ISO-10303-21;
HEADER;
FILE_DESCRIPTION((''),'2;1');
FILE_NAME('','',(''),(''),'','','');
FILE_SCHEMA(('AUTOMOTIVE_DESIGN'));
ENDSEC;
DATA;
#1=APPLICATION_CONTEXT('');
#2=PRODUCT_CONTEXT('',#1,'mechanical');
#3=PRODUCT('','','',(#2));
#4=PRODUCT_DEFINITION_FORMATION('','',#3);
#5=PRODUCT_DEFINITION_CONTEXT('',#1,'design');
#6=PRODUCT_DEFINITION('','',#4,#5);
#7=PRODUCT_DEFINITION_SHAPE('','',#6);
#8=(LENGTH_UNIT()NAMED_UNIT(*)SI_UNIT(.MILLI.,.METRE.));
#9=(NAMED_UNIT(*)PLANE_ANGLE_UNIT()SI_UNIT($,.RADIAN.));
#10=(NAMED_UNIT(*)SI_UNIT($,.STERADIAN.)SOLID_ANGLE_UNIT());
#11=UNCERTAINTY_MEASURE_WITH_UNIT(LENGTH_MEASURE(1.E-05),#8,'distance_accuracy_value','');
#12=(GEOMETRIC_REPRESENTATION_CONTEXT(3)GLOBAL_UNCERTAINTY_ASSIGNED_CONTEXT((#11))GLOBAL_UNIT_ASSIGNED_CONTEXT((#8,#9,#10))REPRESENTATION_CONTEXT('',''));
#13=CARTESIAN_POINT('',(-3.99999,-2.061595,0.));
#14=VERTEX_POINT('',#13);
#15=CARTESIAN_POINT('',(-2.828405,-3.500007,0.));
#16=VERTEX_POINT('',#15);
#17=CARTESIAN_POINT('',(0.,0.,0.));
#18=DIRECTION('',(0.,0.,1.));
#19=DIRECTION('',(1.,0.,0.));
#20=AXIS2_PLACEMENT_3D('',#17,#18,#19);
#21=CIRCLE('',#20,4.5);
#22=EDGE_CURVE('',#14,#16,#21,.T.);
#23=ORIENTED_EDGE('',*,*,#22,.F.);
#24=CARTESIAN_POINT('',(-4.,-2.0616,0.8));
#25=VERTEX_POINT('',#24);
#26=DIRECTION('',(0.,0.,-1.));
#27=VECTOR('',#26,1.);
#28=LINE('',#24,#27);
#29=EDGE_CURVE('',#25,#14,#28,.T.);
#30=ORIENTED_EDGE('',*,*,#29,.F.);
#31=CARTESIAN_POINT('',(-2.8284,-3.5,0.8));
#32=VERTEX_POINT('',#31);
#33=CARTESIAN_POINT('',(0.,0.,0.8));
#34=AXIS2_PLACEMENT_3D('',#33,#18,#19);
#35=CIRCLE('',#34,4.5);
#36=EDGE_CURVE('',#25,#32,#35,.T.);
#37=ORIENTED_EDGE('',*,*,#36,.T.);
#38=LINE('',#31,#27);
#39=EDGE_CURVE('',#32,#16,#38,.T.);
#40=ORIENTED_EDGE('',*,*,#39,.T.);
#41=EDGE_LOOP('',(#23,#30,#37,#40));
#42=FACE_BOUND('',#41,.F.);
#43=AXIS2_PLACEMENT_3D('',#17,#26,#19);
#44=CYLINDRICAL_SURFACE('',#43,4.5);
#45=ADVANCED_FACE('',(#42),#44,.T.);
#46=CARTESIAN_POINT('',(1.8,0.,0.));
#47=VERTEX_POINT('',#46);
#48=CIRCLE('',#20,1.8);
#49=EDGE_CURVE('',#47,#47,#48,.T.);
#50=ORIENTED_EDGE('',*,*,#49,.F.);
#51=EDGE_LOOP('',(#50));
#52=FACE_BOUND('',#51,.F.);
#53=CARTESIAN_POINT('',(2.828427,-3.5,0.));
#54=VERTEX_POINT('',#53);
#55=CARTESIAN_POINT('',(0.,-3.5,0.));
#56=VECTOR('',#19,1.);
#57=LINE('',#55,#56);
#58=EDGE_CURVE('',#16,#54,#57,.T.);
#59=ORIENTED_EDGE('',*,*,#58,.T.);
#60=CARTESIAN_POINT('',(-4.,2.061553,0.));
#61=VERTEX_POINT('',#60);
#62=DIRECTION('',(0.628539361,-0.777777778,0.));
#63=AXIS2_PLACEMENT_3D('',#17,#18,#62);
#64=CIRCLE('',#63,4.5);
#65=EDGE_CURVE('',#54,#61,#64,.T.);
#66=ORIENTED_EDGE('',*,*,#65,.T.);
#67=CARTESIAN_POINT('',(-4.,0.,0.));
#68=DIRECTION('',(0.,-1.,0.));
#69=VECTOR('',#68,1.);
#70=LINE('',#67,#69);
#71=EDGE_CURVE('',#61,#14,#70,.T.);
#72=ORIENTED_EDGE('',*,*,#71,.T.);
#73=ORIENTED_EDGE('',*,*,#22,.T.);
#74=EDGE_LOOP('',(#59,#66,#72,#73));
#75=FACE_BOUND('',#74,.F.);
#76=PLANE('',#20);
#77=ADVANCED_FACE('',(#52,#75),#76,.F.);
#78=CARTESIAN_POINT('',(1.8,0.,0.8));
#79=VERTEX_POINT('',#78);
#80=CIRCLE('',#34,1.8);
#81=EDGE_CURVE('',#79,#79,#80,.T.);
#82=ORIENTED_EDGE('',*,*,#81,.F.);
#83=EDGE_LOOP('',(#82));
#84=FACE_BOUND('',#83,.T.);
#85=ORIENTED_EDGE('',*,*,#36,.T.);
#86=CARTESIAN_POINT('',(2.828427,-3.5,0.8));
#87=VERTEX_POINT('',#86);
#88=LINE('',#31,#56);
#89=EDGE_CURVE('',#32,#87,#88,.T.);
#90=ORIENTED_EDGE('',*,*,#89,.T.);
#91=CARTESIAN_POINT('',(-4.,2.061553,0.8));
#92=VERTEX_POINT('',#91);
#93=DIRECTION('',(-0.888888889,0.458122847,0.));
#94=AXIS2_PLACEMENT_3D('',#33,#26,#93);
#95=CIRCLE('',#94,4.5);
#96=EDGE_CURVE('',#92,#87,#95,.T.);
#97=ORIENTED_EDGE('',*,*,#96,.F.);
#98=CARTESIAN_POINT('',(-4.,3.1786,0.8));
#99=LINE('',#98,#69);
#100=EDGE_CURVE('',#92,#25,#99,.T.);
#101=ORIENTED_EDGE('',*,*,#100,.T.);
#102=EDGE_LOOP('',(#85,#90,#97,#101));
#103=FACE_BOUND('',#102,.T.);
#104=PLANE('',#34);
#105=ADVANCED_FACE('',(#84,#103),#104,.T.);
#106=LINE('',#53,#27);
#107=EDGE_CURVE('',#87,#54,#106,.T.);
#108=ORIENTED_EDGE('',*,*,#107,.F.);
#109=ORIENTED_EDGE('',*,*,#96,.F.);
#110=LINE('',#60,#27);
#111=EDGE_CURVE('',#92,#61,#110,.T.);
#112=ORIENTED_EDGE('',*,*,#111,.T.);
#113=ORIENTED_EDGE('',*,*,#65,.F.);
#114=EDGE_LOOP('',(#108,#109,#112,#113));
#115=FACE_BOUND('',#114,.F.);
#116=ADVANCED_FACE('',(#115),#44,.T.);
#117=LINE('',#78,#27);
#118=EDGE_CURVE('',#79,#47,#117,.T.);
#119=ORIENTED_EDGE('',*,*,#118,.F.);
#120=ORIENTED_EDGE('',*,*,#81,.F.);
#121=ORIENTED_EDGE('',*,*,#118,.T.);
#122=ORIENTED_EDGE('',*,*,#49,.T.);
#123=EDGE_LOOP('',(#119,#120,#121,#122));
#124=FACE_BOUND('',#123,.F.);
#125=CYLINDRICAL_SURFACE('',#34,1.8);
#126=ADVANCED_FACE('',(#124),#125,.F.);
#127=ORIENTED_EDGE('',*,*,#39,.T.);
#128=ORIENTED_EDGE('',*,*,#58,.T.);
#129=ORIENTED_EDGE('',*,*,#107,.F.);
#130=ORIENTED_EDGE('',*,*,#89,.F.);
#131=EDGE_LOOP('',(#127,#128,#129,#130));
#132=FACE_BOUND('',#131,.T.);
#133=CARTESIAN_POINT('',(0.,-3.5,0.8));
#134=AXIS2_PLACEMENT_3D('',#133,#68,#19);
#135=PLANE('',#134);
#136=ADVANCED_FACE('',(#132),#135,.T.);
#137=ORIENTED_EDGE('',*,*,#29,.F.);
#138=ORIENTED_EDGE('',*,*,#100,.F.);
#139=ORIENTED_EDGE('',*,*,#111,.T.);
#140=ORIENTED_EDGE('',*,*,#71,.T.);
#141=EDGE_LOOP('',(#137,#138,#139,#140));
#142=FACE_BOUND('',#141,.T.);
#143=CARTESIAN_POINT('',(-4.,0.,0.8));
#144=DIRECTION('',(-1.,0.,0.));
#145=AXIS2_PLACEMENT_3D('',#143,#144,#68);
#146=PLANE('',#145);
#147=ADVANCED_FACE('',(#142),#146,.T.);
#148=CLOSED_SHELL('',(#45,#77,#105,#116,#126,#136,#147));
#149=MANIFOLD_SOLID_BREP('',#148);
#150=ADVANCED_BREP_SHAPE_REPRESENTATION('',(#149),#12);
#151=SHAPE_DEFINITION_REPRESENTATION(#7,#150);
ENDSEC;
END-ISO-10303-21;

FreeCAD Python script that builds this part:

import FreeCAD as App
import Part
import Sketcher
Q = App.Units.Quantity


def add_polygon(sketch, points):
    """Adds a closed chain of lines whose ends are joined by coincident constraints."""
    first, n = sketch.GeometryCount, len(points)
    for a, b in zip(points, points[1:] + points[:1]):
        sketch.addGeometry(Part.LineSegment(App.Vector(*a, 0), App.Vector(*b, 0)), False)
    for i in range(n):
        sketch.addConstraint(Sketcher.Constraint("Coincident", first + i, 2, first + (i + 1) % n, 1))

doc = App.newDocument("Part")
body = doc.addObject("PartDesign::Body", "Body")

sketch1 = body.newObject("Sketcher::SketchObject", "Sketch")
sketch1.AttachmentSupport = (doc.getObject("XY_Plane"), [""])
sketch1.MapMode = "FlatFace"
sketch1.addGeometry(Part.Circle(App.Vector(0, 0, 0), App.Vector(0, 0, 1), 4.5), False)
sketch1.addConstraint(Sketcher.Constraint("Coincident", 0, 3, -1, 1))
sketch1.addConstraint(Sketcher.Constraint("Diameter", 0, Q("9 mm")))
pad1 = body.newObject("PartDesign::Pad", "Pad")
pad1.Profile = sketch1
pad1.Length = 0.8

sketch2 = body.newObject("Sketcher::SketchObject", "Sketch001")
sketch2.AttachmentSupport = (doc.getObject("XY_Plane"), [""])
sketch2.MapMode = "FlatFace"
sketch2.AttachmentOffset = App.Placement(App.Vector(0, 0, 0.8), App.Rotation())
sketch2.addGeometry(Part.Circle(App.Vector(0, 0, 0), App.Vector(0, 0, 1), 1.8), False)
sketch2.addConstraint(Sketcher.Constraint("Coincident", 0, 3, -1, 1))
sketch2.addConstraint(Sketcher.Constraint("Diameter", 0, Q("3.6 mm")))
pocket1 = body.newObject("PartDesign::Pocket", "Pocket")
pocket1.Profile = sketch2
pocket1.Length = 0.8

sketch3 = body.newObject("Sketcher::SketchObject", "Sketch002")
sketch3.AttachmentSupport = (doc.getObject("XY_Plane"), [""])
sketch3.MapMode = "FlatFace"
sketch3.AttachmentOffset = App.Placement(App.Vector(0, 0, 0.8), App.Rotation())
add_polygon(sketch3, [(-2.8284, -3.5), (-2.8284, -5.6057), (4.77, -5.6057), (4.77, -3.5)])
add_polygon(sketch3, [(-4, -2.0616), (-4, 3.1786), (-5.2131, 3.1786), (-5.2131, -2.0616)])
sketch3.addConstraint(Sketcher.Constraint("Vertical", 0))
sketch3.addConstraint(Sketcher.Constraint("Horizontal", 1))
sketch3.addConstraint(Sketcher.Constraint("Vertical", 2))
sketch3.addConstraint(Sketcher.Constraint("Horizontal", 3))
sketch3.addConstraint(Sketcher.Constraint("Vertical", 4))
sketch3.addConstraint(Sketcher.Constraint("Horizontal", 5))
sketch3.addConstraint(Sketcher.Constraint("Vertical", 6))
sketch3.addConstraint(Sketcher.Constraint("Horizontal", 7))
sketch3.addConstraint(Sketcher.Constraint("DistanceX", 4, 2, -1, 1, Q("4 mm")))
sketch3.addConstraint(Sketcher.Constraint("DistanceY", 2, 2, -1, 1, Q("3.5 mm")))
sketch3.addConstraint(Sketcher.Constraint("DistanceX", 5, 2, 5, 1, Q("1.213 mm")))
sketch3.addConstraint(Sketcher.Constraint("DistanceX", -1, 1, 1, 2, Q("4.77 mm")))
sketch3.addConstraint(Sketcher.Constraint("DistanceX", 1, 1, 1, 2, Q("7.5984 mm")))
sketch3.addConstraint(Sketcher.Constraint("DistanceY", 0, 2, 0, 1, Q("2.1057 mm")))
sketch3.addConstraint(Sketcher.Constraint("DistanceY", 4, 1, 4, 2, Q("5.2402 mm")))
sketch3.addConstraint(Sketcher.Constraint("DistanceY", 0, 2, 6, 2, Q("3.544 mm")))
pocket2 = body.newObject("PartDesign::Pocket", "Pocket001")
pocket2.Profile = sketch3
pocket2.Length = 10

doc.recompute()
